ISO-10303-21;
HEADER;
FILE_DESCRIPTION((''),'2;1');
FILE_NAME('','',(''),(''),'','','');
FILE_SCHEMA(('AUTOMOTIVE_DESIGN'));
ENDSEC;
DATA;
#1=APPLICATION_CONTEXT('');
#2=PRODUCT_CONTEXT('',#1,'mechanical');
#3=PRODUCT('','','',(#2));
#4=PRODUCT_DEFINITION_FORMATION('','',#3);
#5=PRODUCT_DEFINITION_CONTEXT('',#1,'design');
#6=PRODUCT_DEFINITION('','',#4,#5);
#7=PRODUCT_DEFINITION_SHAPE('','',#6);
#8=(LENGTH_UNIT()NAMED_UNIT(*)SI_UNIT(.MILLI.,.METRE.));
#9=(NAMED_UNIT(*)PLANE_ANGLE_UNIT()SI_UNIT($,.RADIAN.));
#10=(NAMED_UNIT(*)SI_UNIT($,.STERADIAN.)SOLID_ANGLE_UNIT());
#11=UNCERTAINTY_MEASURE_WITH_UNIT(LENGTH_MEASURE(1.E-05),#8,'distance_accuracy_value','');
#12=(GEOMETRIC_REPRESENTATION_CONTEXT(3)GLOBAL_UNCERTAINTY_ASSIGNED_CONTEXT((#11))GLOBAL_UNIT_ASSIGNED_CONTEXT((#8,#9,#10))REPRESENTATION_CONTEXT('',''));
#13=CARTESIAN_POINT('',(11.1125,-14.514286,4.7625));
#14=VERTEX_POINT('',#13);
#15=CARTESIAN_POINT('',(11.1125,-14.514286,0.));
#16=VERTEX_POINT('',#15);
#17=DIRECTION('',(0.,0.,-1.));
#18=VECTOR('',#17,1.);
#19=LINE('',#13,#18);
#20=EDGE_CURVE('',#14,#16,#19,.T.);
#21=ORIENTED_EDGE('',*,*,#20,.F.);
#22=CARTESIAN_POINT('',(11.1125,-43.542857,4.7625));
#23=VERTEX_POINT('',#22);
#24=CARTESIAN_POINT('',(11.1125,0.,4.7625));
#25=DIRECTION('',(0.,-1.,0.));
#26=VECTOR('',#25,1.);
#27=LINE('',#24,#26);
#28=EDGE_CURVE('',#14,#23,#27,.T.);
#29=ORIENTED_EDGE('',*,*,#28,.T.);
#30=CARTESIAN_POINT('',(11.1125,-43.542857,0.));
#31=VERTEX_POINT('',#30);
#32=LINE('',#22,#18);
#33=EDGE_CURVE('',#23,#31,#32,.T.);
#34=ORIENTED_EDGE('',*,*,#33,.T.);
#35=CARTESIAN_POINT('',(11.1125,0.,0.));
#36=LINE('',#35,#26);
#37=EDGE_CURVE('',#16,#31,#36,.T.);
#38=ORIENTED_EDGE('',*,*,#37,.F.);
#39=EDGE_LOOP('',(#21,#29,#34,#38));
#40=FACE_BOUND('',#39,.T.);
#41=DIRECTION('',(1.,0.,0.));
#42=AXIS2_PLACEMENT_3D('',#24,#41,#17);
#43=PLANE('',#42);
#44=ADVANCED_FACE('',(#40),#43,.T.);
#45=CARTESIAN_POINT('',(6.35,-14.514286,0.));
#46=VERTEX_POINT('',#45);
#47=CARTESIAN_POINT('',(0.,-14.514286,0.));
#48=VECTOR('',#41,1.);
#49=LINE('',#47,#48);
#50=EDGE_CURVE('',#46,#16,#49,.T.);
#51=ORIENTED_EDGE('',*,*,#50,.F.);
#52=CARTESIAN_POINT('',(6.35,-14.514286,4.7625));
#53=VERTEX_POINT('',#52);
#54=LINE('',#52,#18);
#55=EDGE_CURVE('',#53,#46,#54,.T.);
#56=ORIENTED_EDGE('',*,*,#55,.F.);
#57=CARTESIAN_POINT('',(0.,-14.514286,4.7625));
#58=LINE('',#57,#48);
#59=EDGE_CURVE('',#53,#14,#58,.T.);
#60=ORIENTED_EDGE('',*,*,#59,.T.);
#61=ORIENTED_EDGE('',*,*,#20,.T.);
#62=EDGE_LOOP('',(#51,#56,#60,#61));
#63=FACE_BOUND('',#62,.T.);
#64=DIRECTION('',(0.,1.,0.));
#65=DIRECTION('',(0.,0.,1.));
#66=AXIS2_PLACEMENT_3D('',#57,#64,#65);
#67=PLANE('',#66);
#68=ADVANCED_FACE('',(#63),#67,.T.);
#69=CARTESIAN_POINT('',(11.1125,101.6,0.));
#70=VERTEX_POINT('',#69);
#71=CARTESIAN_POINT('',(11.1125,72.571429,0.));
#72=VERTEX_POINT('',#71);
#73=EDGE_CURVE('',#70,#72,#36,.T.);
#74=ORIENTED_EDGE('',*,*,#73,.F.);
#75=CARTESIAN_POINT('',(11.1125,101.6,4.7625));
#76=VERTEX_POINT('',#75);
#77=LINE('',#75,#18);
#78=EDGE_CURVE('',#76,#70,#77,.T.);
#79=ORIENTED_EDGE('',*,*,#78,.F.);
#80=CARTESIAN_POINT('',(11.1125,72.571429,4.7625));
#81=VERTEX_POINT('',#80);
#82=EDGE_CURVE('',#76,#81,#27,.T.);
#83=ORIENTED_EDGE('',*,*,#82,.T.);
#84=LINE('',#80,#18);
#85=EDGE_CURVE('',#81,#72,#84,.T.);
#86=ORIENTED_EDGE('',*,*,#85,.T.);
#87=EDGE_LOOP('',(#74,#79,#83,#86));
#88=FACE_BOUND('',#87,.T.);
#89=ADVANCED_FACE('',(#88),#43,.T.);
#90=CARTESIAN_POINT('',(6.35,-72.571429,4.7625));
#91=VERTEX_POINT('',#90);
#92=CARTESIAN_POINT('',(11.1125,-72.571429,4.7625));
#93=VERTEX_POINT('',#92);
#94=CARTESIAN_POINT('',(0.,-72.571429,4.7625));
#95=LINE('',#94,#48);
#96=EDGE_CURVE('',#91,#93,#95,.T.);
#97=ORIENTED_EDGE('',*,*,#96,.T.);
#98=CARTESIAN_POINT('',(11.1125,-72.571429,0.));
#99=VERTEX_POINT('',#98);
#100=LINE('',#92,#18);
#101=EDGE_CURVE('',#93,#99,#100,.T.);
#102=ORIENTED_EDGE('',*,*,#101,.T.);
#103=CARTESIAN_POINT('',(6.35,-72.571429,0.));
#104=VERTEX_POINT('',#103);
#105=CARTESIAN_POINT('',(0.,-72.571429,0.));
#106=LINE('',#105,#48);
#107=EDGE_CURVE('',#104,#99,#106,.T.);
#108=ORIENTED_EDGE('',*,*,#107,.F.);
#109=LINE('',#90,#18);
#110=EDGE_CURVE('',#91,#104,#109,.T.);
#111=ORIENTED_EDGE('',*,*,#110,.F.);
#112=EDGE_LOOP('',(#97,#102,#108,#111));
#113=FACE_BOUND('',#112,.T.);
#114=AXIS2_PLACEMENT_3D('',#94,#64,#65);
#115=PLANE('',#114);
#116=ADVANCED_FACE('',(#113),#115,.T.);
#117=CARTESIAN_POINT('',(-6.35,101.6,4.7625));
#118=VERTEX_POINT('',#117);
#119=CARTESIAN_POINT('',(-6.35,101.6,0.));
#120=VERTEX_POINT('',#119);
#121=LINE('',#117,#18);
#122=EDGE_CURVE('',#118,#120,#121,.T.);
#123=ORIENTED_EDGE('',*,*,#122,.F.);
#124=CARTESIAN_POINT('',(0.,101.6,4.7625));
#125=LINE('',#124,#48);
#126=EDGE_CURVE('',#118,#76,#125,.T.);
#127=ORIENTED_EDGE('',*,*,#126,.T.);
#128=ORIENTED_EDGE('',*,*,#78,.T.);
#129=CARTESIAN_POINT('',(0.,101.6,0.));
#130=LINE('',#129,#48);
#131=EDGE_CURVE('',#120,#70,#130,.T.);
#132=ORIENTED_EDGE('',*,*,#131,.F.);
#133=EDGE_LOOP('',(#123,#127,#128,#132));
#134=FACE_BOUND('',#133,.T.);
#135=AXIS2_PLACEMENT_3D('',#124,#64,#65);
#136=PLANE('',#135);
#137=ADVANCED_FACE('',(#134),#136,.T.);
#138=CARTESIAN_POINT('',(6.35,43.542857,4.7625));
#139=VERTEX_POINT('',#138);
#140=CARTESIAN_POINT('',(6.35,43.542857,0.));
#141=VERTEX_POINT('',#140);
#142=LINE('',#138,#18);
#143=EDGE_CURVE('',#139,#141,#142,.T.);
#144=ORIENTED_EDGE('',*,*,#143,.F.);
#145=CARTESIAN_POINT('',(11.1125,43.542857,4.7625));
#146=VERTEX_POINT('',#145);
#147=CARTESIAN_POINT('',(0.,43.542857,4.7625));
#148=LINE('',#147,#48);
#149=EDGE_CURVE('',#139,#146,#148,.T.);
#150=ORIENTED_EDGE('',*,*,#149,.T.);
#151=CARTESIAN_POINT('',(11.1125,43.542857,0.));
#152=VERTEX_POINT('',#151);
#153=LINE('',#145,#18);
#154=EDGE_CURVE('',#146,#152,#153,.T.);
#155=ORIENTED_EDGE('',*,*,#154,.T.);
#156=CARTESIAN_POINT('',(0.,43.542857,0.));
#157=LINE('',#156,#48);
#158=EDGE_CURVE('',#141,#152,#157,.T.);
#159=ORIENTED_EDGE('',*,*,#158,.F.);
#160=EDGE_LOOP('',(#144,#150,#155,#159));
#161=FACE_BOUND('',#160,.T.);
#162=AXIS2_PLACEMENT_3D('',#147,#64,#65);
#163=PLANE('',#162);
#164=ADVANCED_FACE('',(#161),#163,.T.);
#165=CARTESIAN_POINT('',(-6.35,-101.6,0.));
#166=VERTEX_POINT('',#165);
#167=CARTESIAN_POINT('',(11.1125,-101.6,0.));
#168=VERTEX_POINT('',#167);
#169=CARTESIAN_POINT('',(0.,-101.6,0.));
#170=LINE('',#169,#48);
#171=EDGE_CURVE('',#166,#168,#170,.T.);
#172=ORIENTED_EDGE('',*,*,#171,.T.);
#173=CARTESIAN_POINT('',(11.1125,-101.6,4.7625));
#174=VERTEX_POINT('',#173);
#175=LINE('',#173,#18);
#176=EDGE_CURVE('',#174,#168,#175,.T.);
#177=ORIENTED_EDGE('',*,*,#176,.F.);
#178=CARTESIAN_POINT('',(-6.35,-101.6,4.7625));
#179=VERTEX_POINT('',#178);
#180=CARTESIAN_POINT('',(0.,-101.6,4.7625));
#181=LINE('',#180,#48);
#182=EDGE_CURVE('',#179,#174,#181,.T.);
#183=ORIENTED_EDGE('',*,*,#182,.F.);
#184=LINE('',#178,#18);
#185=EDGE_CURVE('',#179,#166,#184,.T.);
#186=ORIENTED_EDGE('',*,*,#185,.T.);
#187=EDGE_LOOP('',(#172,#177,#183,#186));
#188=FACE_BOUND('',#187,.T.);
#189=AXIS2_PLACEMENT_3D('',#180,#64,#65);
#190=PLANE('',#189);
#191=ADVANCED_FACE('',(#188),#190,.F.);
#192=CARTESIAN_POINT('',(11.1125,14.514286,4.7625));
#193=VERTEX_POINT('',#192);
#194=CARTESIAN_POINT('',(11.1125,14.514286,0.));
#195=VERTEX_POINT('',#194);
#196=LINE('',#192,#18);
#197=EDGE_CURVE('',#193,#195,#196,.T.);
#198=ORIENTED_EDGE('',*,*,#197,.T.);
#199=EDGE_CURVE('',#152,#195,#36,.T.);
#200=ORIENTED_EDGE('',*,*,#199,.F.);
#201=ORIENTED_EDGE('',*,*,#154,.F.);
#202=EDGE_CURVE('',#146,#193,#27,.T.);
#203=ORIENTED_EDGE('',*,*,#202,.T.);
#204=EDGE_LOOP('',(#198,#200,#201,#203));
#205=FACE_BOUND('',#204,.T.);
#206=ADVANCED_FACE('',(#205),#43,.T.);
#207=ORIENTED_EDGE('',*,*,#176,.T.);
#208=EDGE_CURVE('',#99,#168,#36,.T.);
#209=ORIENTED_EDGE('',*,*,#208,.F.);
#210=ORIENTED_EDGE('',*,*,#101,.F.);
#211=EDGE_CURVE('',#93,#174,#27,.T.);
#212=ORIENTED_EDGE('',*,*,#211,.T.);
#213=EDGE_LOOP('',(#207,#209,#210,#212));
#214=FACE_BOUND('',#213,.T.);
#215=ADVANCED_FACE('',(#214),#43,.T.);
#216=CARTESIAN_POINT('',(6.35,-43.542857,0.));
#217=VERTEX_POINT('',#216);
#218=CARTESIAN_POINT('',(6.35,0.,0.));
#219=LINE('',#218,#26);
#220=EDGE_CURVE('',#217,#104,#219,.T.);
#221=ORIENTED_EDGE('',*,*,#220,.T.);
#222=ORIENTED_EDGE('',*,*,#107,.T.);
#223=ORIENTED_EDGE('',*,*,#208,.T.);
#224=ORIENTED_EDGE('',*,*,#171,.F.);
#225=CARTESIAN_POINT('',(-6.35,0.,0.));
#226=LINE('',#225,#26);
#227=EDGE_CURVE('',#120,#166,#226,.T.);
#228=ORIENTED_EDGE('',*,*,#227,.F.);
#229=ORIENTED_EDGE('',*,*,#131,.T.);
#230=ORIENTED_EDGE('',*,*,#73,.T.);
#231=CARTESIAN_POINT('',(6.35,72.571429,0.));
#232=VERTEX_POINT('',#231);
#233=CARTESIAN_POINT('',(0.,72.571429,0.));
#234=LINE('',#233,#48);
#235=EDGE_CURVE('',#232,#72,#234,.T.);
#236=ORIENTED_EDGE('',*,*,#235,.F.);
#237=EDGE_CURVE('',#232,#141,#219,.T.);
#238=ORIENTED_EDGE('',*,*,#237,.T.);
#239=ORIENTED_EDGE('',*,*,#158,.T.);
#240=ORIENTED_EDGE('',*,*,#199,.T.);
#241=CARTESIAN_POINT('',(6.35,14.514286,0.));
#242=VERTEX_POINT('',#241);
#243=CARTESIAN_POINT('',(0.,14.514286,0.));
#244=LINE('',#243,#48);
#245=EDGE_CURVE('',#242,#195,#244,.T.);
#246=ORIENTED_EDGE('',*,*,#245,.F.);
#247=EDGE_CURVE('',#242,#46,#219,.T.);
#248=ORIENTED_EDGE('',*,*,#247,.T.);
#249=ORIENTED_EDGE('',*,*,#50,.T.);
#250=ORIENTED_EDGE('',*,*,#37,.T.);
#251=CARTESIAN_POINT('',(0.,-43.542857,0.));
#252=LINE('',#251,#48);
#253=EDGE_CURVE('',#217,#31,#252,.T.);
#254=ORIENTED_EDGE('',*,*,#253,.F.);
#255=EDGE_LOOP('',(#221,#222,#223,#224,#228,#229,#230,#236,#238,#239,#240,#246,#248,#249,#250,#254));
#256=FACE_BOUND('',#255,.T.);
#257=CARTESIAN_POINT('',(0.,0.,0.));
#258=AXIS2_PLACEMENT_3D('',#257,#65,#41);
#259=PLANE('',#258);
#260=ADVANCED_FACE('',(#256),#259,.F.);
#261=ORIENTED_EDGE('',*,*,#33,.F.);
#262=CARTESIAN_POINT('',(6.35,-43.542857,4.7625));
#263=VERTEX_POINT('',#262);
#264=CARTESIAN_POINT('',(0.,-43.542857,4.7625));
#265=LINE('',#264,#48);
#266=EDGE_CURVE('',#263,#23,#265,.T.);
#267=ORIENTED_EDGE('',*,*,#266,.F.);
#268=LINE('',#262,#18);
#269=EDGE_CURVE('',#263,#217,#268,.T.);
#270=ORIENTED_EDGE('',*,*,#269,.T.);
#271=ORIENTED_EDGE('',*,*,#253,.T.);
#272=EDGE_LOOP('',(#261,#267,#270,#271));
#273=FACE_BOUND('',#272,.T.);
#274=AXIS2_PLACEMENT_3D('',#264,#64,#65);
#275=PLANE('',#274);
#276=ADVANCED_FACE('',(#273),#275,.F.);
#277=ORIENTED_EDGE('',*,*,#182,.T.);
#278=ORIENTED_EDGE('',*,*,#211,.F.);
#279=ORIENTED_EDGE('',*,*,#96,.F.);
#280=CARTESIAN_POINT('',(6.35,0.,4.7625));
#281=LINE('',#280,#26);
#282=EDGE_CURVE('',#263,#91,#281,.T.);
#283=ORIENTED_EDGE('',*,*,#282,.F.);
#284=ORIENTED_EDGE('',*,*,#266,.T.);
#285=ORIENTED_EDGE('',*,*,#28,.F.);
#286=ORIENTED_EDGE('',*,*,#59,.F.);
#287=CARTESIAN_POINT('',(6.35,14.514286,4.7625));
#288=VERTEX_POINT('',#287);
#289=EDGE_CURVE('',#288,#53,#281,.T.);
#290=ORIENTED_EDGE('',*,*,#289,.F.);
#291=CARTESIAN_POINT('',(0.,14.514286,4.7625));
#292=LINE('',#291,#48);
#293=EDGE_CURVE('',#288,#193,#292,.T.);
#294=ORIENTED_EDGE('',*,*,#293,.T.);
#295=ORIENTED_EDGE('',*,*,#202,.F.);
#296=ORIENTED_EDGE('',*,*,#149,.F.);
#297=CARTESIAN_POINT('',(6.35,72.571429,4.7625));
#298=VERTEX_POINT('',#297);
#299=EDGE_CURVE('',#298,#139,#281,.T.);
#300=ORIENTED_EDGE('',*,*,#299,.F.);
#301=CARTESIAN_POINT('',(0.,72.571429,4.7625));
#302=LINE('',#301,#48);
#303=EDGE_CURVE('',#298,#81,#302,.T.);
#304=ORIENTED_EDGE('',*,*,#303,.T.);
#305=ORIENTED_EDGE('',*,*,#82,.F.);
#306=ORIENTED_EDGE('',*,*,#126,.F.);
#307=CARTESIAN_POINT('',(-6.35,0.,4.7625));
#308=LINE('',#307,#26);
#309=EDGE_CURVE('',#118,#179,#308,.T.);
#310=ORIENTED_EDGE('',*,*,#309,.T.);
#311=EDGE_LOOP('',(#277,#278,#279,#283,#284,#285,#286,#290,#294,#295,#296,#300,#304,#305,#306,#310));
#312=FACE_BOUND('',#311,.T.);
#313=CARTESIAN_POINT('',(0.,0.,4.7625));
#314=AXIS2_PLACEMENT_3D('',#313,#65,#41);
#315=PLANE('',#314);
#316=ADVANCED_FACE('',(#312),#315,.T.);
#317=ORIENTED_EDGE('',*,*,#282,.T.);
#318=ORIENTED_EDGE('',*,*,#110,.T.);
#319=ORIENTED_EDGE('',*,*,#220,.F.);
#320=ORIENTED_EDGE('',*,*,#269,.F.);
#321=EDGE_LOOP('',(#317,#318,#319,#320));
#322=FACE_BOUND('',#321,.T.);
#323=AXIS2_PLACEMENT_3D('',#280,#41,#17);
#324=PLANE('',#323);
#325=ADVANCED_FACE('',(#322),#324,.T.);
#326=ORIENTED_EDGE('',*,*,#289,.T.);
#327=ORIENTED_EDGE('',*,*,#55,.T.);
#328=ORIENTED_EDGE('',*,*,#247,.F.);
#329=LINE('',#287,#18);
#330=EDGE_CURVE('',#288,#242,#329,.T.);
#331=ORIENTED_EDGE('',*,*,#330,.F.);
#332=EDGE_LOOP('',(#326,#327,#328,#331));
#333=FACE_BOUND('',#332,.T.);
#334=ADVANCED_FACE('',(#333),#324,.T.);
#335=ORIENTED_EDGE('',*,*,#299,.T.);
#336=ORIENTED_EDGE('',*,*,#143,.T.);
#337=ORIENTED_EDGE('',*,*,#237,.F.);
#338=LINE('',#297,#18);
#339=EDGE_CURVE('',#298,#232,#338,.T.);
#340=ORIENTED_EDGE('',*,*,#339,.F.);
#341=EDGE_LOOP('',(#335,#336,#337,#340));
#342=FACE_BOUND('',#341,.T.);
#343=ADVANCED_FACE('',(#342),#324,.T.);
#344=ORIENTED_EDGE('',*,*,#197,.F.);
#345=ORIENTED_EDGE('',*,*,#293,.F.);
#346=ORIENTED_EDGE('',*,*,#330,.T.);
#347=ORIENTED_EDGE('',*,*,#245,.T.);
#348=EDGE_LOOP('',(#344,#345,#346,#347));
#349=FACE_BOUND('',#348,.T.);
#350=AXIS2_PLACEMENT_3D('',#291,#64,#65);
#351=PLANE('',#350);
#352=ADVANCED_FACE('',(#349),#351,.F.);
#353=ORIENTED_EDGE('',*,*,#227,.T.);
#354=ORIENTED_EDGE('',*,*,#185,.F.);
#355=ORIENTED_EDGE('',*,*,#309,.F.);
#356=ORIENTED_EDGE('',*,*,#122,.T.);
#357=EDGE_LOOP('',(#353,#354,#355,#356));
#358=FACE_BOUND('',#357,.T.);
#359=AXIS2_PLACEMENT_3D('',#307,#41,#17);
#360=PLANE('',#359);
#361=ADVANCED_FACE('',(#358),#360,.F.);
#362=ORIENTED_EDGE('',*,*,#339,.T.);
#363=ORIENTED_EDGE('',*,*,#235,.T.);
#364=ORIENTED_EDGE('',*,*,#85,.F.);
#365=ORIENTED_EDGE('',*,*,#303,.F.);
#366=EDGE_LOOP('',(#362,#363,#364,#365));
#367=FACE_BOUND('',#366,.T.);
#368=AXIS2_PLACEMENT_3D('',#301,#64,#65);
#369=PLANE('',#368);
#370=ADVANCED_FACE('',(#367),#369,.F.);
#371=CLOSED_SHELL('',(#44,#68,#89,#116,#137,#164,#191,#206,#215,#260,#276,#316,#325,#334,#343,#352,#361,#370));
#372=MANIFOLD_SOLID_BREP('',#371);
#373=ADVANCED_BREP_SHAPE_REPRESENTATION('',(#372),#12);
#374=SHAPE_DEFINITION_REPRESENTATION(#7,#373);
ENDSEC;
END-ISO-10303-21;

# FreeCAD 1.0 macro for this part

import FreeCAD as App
import Part
import Sketcher

V = App.Vector
Q = App.Units.Quantity

doc = App.newDocument("Part")
body = doc.addObject("PartDesign::Body", "Body")

# Sketch on XY plane
sketch1 = body.newObject("Sketcher::SketchObject", "Sketch")
sketch1.AttachmentSupport = (doc.getObject("XY_Plane"), [""])
sketch1.MapMode = "FlatFace"
sketch1.addGeometry(Part.LineSegment(V(-6.3, 101.6, 0), V(-6.3, -101.6, 0)), False)
sketch1.addGeometry(Part.LineSegment(V(-6.3, -101.6, 0), V(6.3, -101.6, 0)), False)
sketch1.addGeometry(Part.LineSegment(V(6.3, -101.6, 0), V(11.1, -101.6, 0)), False)
sketch1.addGeometry(Part.LineSegment(V(11.1, -101.6, 0), V(11.1, -72.6, 0)), False)
sketch1.addGeometry(Part.LineSegment(V(11.1, -72.6, 0), V(6.3, -72.6, 0)), False)
sketch1.addGeometry(Part.LineSegment(V(6.3, -72.6, 0), V(6.3, -43.5, 0)), False)
sketch1.addGeometry(Part.LineSegment(V(6.3, -43.5, 0), V(11.1, -43.5, 0)), False)
sketch1.addGeometry(Part.LineSegment(V(11.1, -43.5, 0), V(11.1, -14.5, 0)), False)
sketch1.addGeometry(Part.LineSegment(V(11.1, -14.5, 0), V(6.3, -14.5, 0)), False)
sketch1.addGeometry(Part.LineSegment(V(6.3, -14.5, 0), V(6.3, 14.5, 0)), False)
sketch1.addGeometry(Part.LineSegment(V(6.3, 14.5, 0), V(11.1, 14.5, 0)), False)
sketch1.addGeometry(Part.LineSegment(V(11.1, 14.5, 0), V(11.1, 43.5, 0)), False)
sketch1.addGeometry(Part.LineSegment(V(11.1, 43.5, 0), V(6.3, 43.5, 0)), False)
sketch1.addGeometry(Part.LineSegment(V(6.3, 43.5, 0), V(6.3, 72.6, 0)), False)
sketch1.addGeometry(Part.LineSegment(V(6.3, 72.6, 0), V(11.1, 72.6, 0)), False)
sketch1.addGeometry(Part.LineSegment(V(11.1, 72.6, 0), V(11.1, 101.6, 0)), False)
sketch1.addGeometry(Part.LineSegment(V(11.1, 101.6, 0), V(6.3, 101.6, 0)), False)
sketch1.addGeometry(Part.LineSegment(V(6.3, 101.6, 0), V(-6.3, 101.6, 0)), False)
sketch1.addConstraint(Sketcher.Constraint("Coincident", 0, 2, 1, 1))
sketch1.addConstraint(Sketcher.Constraint("Coincident", 1, 2, 2, 1))
sketch1.addConstraint(Sketcher.Constraint("Coincident", 2, 2, 3, 1))
sketch1.addConstraint(Sketcher.Constraint("Coincident", 3, 2, 4, 1))
sketch1.addConstraint(Sketcher.Constraint("Coincident", 4, 2, 5, 1))
sketch1.addConstraint(Sketcher.Constraint("Coincident", 5, 2, 6, 1))
sketch1.addConstraint(Sketcher.Constraint("Coincident", 6, 2, 7, 1))
sketch1.addConstraint(Sketcher.Constraint("Coincident", 7, 2, 8, 1))
sketch1.addConstraint(Sketcher.Constraint("Coincident", 8, 2, 9, 1))
sketch1.addConstraint(Sketcher.Constraint("Coincident", 9, 2, 10, 1))
sketch1.addConstraint(Sketcher.Constraint("Coincident", 10, 2, 11, 1))
sketch1.addConstraint(Sketcher.Constraint("Coincident", 11, 2, 12, 1))
sketch1.addConstraint(Sketcher.Constraint("Coincident", 12, 2, 13, 1))
sketch1.addConstraint(Sketcher.Constraint("Coincident", 13, 2, 14, 1))
sketch1.addConstraint(Sketcher.Constraint("Coincident", 14, 2, 15, 1))
sketch1.addConstraint(Sketcher.Constraint("Coincident", 15, 2, 16, 1))
sketch1.addConstraint(Sketcher.Constraint("Coincident", 16, 2, 17, 1))
sketch1.addConstraint(Sketcher.Constraint("Coincident", 17, 2, 0, 1))
sketch1.addConstraint(Sketcher.Constraint("Vertical", 0))
sketch1.addConstraint(Sketcher.Constraint("Horizontal", 1))
sketch1.addConstraint(Sketcher.Constraint("Horizontal", 2))
sketch1.addConstraint(Sketcher.Constraint("Vertical", 3))
sketch1.addConstraint(Sketcher.Constraint("Horizontal", 4))
sketch1.addConstraint(Sketcher.Constraint("Vertical", 5))
sketch1.addConstraint(Sketcher.Constraint("Horizontal", 6))
sketch1.addConstraint(Sketcher.Constraint("Vertical", 7))
sketch1.addConstraint(Sketcher.Constraint("Horizontal", 8))
sketch1.addConstraint(Sketcher.Constraint("Vertical", 9))
sketch1.addConstraint(Sketcher.Constraint("Horizontal", 10))
sketch1.addConstraint(Sketcher.Constraint("Vertical", 11))
sketch1.addConstraint(Sketcher.Constraint("Horizontal", 12))
sketch1.addConstraint(Sketcher.Constraint("Vertical", 13))
sketch1.addConstraint(Sketcher.Constraint("Horizontal", 14))
sketch1.addConstraint(Sketcher.Constraint("Vertical", 15))
sketch1.addConstraint(Sketcher.Constraint("Horizontal", 16))
sketch1.addConstraint(Sketcher.Constraint("Horizontal", 17))
sketch1.addConstraint(Sketcher.Constraint("Symmetric", 0, 2, 16, 2, -1, 1))
sketch1.addConstraint(Sketcher.Constraint("Symmetric", 7, 2, 10, 2, -1))
sketch1.addConstraint(Sketcher.Constraint("Symmetric", 5, 2, 12, 2, -1))
sketch1.addConstraint(Sketcher.Constraint("Symmetric", 3, 2, 14, 2, -1))
sketch1.addConstraint(Sketcher.Constraint("Vertical", 1, 2, 4, 2))
sketch1.addConstraint(Sketcher.Constraint("Vertical", 3, 2, 6, 2))
sketch1.addConstraint(Sketcher.Constraint("Vertical", 5, 2, 8, 2))
sketch1.addConstraint(Sketcher.Constraint("Vertical", 13, 2, 16, 2))
sketch1.addConstraint(Sketcher.Constraint("Equal", 3, 5))
sketch1.addConstraint(Sketcher.Constraint("Equal", 5, 7))
sketch1.addConstraint(Sketcher.Constraint("Equal", 7, 9))
sketch1.addConstraint(Sketcher.Constraint("DistanceY", 0, 2, 0, 1, Q("8 in")))
sketch1.addConstraint(Sketcher.Constraint("DistanceX", 1, 1, 1, 2, Q("0.5 in")))
sketch1.addConstraint(Sketcher.Constraint("DistanceX", 2, 1, 2, 2, Q("0.1875 in")))
pad1 = body.newObject("PartDesign::Pad", "Pad")
pad1.Profile = sketch1
pad1.Length = Q("0.1875 in")

doc.recompute()
